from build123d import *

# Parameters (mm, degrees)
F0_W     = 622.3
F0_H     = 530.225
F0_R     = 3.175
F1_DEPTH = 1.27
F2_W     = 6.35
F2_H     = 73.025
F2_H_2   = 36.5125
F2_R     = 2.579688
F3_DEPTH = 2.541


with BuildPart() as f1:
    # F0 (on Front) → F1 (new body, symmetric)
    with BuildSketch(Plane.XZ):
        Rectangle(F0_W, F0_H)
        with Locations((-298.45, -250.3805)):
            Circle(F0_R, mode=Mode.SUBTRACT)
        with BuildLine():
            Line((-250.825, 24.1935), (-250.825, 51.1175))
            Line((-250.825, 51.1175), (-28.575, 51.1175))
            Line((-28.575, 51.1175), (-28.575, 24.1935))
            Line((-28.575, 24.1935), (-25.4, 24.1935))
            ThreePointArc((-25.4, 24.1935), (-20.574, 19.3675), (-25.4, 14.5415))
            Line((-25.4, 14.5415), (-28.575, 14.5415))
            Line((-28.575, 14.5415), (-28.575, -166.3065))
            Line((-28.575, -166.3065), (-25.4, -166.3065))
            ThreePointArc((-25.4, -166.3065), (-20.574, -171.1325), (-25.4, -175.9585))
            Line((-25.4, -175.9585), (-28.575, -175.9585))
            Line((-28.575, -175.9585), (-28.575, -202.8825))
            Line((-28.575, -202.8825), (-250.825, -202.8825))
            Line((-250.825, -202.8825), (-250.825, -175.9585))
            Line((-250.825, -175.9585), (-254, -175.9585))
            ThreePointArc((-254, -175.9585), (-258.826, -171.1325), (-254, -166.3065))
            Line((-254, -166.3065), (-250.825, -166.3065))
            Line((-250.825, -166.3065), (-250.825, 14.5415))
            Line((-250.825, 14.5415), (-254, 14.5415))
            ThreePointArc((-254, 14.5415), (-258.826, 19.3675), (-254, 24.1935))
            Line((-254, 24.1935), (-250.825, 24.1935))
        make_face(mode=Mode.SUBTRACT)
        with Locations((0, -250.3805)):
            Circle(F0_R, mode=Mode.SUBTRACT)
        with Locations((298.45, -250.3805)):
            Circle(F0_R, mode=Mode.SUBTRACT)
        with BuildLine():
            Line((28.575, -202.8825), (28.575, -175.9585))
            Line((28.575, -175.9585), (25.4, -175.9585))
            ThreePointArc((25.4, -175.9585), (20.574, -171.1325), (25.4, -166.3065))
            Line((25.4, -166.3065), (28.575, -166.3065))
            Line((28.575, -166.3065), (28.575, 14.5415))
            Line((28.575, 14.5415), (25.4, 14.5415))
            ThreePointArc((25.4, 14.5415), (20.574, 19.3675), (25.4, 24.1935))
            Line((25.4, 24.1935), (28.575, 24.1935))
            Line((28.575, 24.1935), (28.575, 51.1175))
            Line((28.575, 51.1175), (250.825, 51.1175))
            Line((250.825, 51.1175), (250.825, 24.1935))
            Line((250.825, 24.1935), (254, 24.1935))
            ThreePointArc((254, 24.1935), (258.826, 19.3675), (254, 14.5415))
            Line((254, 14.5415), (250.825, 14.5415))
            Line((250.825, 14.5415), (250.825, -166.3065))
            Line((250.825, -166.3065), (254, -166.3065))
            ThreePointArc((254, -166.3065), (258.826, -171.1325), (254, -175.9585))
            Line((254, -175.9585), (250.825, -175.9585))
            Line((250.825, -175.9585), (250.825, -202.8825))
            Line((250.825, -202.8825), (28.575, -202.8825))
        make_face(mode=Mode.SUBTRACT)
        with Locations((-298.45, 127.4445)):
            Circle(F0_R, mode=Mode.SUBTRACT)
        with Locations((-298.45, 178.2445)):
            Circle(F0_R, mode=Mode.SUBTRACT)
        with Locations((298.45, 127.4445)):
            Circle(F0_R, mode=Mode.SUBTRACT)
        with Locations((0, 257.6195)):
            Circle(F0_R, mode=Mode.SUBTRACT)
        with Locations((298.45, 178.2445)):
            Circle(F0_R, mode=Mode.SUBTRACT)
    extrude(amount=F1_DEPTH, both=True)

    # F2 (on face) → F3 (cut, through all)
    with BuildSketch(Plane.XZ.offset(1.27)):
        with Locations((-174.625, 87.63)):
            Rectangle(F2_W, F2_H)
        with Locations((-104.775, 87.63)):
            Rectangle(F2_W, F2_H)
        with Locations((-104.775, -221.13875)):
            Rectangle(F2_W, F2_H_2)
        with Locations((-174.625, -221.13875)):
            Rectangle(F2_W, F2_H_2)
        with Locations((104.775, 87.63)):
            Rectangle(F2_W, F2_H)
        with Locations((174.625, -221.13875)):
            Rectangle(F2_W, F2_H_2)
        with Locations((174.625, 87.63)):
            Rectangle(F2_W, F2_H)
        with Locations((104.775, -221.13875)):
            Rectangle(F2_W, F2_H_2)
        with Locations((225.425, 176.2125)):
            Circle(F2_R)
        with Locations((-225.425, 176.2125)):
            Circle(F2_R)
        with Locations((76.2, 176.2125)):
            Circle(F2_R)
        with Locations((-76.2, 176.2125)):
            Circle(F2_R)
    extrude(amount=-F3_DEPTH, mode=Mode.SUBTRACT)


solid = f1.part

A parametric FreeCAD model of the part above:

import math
import FreeCAD as App
import Part
import Sketcher

V = App.Vector
Q = App.Units.Quantity

doc = App.newDocument("Part")
params = doc.addObject("Spreadsheet::Sheet", "Params")
for row, (alias, value) in enumerate([
    ("sketch1_diameter", "0.25 in"),
    ("sketch1_radius", "0.19 in"),
    ("sketch1_width", "24.5 in"),
    ("sketch1_width2", "8.75 in"),
    ("sketch1_height", "1.06 in"),
    ("pad1_length", "0.1 in"),
    ("sketch2_diameter", "0.203125 in"),
    ("sketch2_width", "0.25 in"),
    ("sketch2_height", "2.875 in"),
    ("sketch2_height2", "1.4375 in"),
], start=1):
    params.set(f"A{row}", alias)
    params.set(f"B{row}", "=" + value)
    params.setAlias(f"B{row}", alias)

body = doc.addObject("PartDesign::Body", "Body")

sketch1 = doc.addObject("Sketcher::SketchObject", "Sketch")
body.addObject(sketch1)
sketch1.AttachmentSupport = (doc.XZ_Plane, [""])
sketch1.MapMode = "FlatFace"
sketch1.addGeometry([
    Part.LineSegment(V(-311.1, 265.1, 0), V(-311.1, -265.1, 0)),
    Part.LineSegment(V(-311.1, -265.1, 0), V(311.1, -265.1, 0)),
    Part.LineSegment(V(311.1, -265.1, 0), V(311.1, 265.1, 0)),
    Part.LineSegment(V(311.1, 265.1, 0), V(-311.1, 265.1, 0)),
    Part.Circle(V(-298.4, -250.4, 0), V(0, 0, 1), 3.2),
    Part.LineSegment(V(-254, 24.2, 0), V(-250.8, 24.2, 0)),
    Part.LineSegment(V(-250.8, 24.2, 0), V(-250.8, 51.1, 0)),
    Part.LineSegment(V(-250.8, 51.1, 0), V(-28.6, 51.1, 0)),
    Part.LineSegment(V(-28.6, 51.1, 0), V(-28.6, 24.2, 0)),
    Part.LineSegment(V(-28.6, 24.2, 0), V(-25.4, 24.2, 0)),
    Part.ArcOfCircle(Part.Circle(V(-25.4, 19.4, 0), V(0, 0, 1), 4.8), math.radians(-90), math.radians(90)),
    Part.LineSegment(V(-25.4, 14.5, 0), V(-28.6, 14.5, 0)),
    Part.LineSegment(V(-28.6, 14.5, 0), V(-28.6, -166.3, 0)),
    Part.LineSegment(V(-28.6, -166.3, 0), V(-25.4, -166.3, 0)),
    Part.ArcOfCircle(Part.Circle(V(-25.4, -171.1, 0), V(0, 0, 1), 4.8), math.radians(-90), math.radians(90)),
    Part.LineSegment(V(-25.4, -176, 0), V(-28.6, -176, 0)),
    Part.LineSegment(V(-28.6, -176, 0), V(-28.6, -202.9, 0)),
    Part.LineSegment(V(-28.6, -202.9, 0), V(-250.8, -202.9, 0)),
    Part.LineSegment(V(-250.8, -202.9, 0), V(-250.8, -176, 0)),
    Part.LineSegment(V(-250.8, -176, 0), V(-254, -176, 0)),
    Part.ArcOfCircle(Part.Circle(V(-254, -171.1, 0), V(0, 0, 1), 4.8), math.radians(90), math.radians(270)),
    Part.LineSegment(V(-254, -166.3, 0), V(-250.8, -166.3, 0)),
    Part.LineSegment(V(-250.8, -166.3, 0), V(-250.8, 14.5, 0)),
    Part.LineSegment(V(-250.8, 14.5, 0), V(-254, 14.5, 0)),
    Part.ArcOfCircle(Part.Circle(V(-254, 19.4, 0), V(0, 0, 1), 4.8), math.radians(90), math.radians(270)),
    Part.Circle(V(0, -250.4, 0), V(0, 0, 1), 3.2),
    Part.Circle(V(298.4, -250.4, 0), V(0, 0, 1), 3.2),
    Part.LineSegment(V(250.8, -202.9, 0), V(28.6, -202.9, 0)),
    Part.LineSegment(V(28.6, -202.9, 0), V(28.6, -176, 0)),
    Part.LineSegment(V(28.6, -176, 0), V(25.4, -176, 0)),
    Part.ArcOfCircle(Part.Circle(V(25.4, -171.1, 0), V(0, 0, 1), 4.8), math.radians(90), math.radians(270)),
    Part.LineSegment(V(25.4, -166.3, 0), V(28.6, -166.3, 0)),
    Part.LineSegment(V(28.6, -166.3, 0), V(28.6, 14.5, 0)),
    Part.LineSegment(V(28.6, 14.5, 0), V(25.4, 14.5, 0)),
    Part.ArcOfCircle(Part.Circle(V(25.4, 19.4, 0), V(0, 0, 1), 4.8), math.radians(90), math.radians(270)),
    Part.LineSegment(V(25.4, 24.2, 0), V(28.6, 24.2, 0)),
    Part.LineSegment(V(28.6, 24.2, 0), V(28.6, 51.1, 0)),
    Part.LineSegment(V(28.6, 51.1, 0), V(250.8, 51.1, 0)),
    Part.LineSegment(V(250.8, 51.1, 0), V(250.8, 24.2, 0)),
    Part.LineSegment(V(250.8, 24.2, 0), V(254, 24.2, 0)),
    Part.ArcOfCircle(Part.Circle(V(254, 19.4, 0), V(0, 0, 1), 4.8), math.radians(-90), math.radians(90)),
    Part.LineSegment(V(254, 14.5, 0), V(250.8, 14.5, 0)),
    Part.LineSegment(V(250.8, 14.5, 0), V(250.8, -166.3, 0)),
    Part.LineSegment(V(250.8, -166.3, 0), V(254, -166.3, 0)),
    Part.ArcOfCircle(Part.Circle(V(254, -171.1, 0), V(0, 0, 1), 4.8), math.radians(-90), math.radians(90)),
    Part.LineSegment(V(254, -176, 0), V(250.8, -176, 0)),
    Part.LineSegment(V(250.8, -176, 0), V(250.8, -202.9, 0)),
    Part.Circle(V(-298.4, 127.4, 0), V(0, 0, 1), 3.2),
    Part.Circle(V(-298.4, 178.2, 0), V(0, 0, 1), 3.2),
    Part.Circle(V(298.4, 127.4, 0), V(0, 0, 1), 3.2),
    Part.Circle(V(0, 257.6, 0), V(0, 0, 1), 3.2),
    Part.Circle(V(298.4, 178.2, 0), V(0, 0, 1), 3.2),
], False)
sketch1.addConstraint([
    Sketcher.Constraint("Coincident", 0, 2, 1, 1),
    Sketcher.Constraint("Coincident", 1, 2, 2, 1),
    Sketcher.Constraint("Coincident", 2, 2, 3, 1),
    Sketcher.Constraint("Coincident", 3, 2, 0, 1),
    Sketcher.Constraint("Coincident", 5, 2, 6, 1),
    Sketcher.Constraint("Coincident", 6, 2, 7, 1),
    Sketcher.Constraint("Coincident", 7, 2, 8, 1),
    Sketcher.Constraint("Coincident", 8, 2, 9, 1),
    Sketcher.Constraint("Tangent", 9, 2, 10, 2),
    Sketcher.Constraint("Tangent", 10, 1, 11, 1),
    Sketcher.Constraint("Coincident", 11, 2, 12, 1),
    Sketcher.Constraint("Coincident", 12, 2, 13, 1),
    Sketcher.Constraint("Tangent", 13, 2, 14, 2),
    Sketcher.Constraint("Tangent", 14, 1, 15, 1),
    Sketcher.Constraint("Coincident", 15, 2, 16, 1),
    Sketcher.Constraint("Coincident", 16, 2, 17, 1),
    Sketcher.Constraint("Coincident", 17, 2, 18, 1),
    Sketcher.Constraint("Coincident", 18, 2, 19, 1),
    Sketcher.Constraint("Tangent", 19, 2, 20, 2),
    Sketcher.Constraint("Tangent", 20, 1, 21, 1),
    Sketcher.Constraint("Coincident", 21, 2, 22, 1),
    Sketcher.Constraint("Coincident", 22, 2, 23, 1),
    Sketcher.Constraint("Tangent", 23, 2, 24, 2),
    Sketcher.Constraint("Tangent", 24, 1, 5, 1),
    Sketcher.Constraint("Coincident", 27, 2, 28, 1),
    Sketcher.Constraint("Coincident", 28, 2, 29, 1),
    Sketcher.Constraint("Tangent", 29, 2, 30, 2),
    Sketcher.Constraint("Tangent", 30, 1, 31, 1),
    Sketcher.Constraint("Coincident", 31, 2, 32, 1),
    Sketcher.Constraint("Coincident", 32, 2, 33, 1),
    Sketcher.Constraint("Tangent", 33, 2, 34, 2),
    Sketcher.Constraint("Tangent", 34, 1, 35, 1),
    Sketcher.Constraint("Coincident", 35, 2, 36, 1),
    Sketcher.Constraint("Coincident", 36, 2, 37, 1),
    Sketcher.Constraint("Coincident", 37, 2, 38, 1),
    Sketcher.Constraint("Coincident", 38, 2, 39, 1),
    Sketcher.Constraint("Tangent", 39, 2, 40, 2),
    Sketcher.Constraint("Tangent", 40, 1, 41, 1),
    Sketcher.Constraint("Coincident", 41, 2, 42, 1),
    Sketcher.Constraint("Coincident", 42, 2, 43, 1),
    Sketcher.Constraint("Tangent", 43, 2, 44, 2),
    Sketcher.Constraint("Tangent", 44, 1, 45, 1),
    Sketcher.Constraint("Coincident", 45, 2, 46, 1),
    Sketcher.Constraint("Coincident", 46, 2, 27, 1),
    Sketcher.Constraint("Vertical", 0),
    Sketcher.Constraint("Horizontal", 1),
    Sketcher.Constraint("Vertical", 2),
    Sketcher.Constraint("Horizontal", 3),
    Sketcher.Constraint("Horizontal", 5),
    Sketcher.Constraint("Vertical", 6),
    Sketcher.Constraint("Horizontal", 7),
    Sketcher.Constraint("Vertical", 8),
    Sketcher.Constraint("Horizontal", 9),
    Sketcher.Constraint("Horizontal", 11),
    Sketcher.Constraint("Vertical", 12),
    Sketcher.Constraint("Horizontal", 13),
    Sketcher.Constraint("Horizontal", 15),
    Sketcher.Constraint("Vertical", 16),
    Sketcher.Constraint("Horizontal", 17),
    Sketcher.Constraint("Vertical", 18),
    Sketcher.Constraint("Horizontal", 19),
    Sketcher.Constraint("Horizontal", 21),
    Sketcher.Constraint("Vertical", 22),
    Sketcher.Constraint("Horizontal", 23),
    Sketcher.Constraint("Horizontal", 27),
    Sketcher.Constraint("Vertical", 28),
    Sketcher.Constraint("Horizontal", 29),
    Sketcher.Constraint("Horizontal", 31),
    Sketcher.Constraint("Vertical", 32),
    Sketcher.Constraint("Horizontal", 33),
    Sketcher.Constraint("Horizontal", 35),
    Sketcher.Constraint("Vertical", 36),
    Sketcher.Constraint("Horizontal", 37),
    Sketcher.Constraint("Vertical", 38),
    Sketcher.Constraint("Horizontal", 39),
    Sketcher.Constraint("Horizontal", 41),
    Sketcher.Constraint("Vertical", 42),
    Sketcher.Constraint("Horizontal", 43),
    Sketcher.Constraint("Horizontal", 45),
    Sketcher.Constraint("Vertical", 46),
    Sketcher.Constraint("Equal", 10, 14),
    Sketcher.Constraint("Equal", 14, 20),
    Sketcher.Constraint("Equal", 20, 24),
    Sketcher.Constraint("Equal", 4, 25),
    Sketcher.Constraint("Equal", 25, 26),
    Sketcher.Constraint("Equal", 24, 30),
    Sketcher.Constraint("Equal", 30, 34),
    Sketcher.Constraint("Equal", 34, 40),
    Sketcher.Constraint("Equal", 40, 44),
    Sketcher.Constraint("Equal", 26, 47),
    Sketcher.Constraint("Equal", 47, 48),
    Sketcher.Constraint("Equal", 48, 49),
    Sketcher.Constraint("Equal", 49, 50),
    Sketcher.Constraint("Equal", 50, 51),
    Sketcher.Constraint("Symmetric", 0, 2, 2, 2, -1, 1),
    Sketcher.Constraint("Symmetric", 4, 3, 26, 3, -2),
    Sketcher.Constraint("Symmetric", 14, 3, 30, 3, -2),
    Sketcher.Constraint("Symmetric", 10, 3, 34, 3, -2),
    Sketcher.Constraint("Symmetric", 24, 3, 40, 3, -2),
    Sketcher.Constraint("Symmetric", 20, 3, 44, 3, -2),
    Sketcher.Constraint("Symmetric", 47, 3, 49, 3, -2),
    Sketcher.Constraint("Symmetric", 48, 3, 51, 3, -2),
    Sketcher.Constraint("Symmetric", 16, 2, 27, 2, -2),
    Sketcher.Constraint("Symmetric", 7, 2, 36, 2, -2),
    Sketcher.Constraint("PointOnObject", 25, 3, -2),
    Sketcher.Constraint("PointOnObject", 50, 3, -2),
    Sketcher.Constraint("Horizontal", 14, 3, 20, 3),
    Sketcher.Constraint("Horizontal", 10, 3, 24, 3),
    Sketcher.Constraint("Horizontal", 4, 3, 25, 3),
    Sketcher.Constraint("Vertical", 10, 3, 14, 3),
    Sketcher.Constraint("Vertical", 20, 3, 24, 3),
    Sketcher.Constraint("Vertical", 4, 3, 47, 3),
    Sketcher.Constraint("Vertical", 47, 3, 48, 3),
    Sketcher.Constraint("Vertical", 8, 2, 11, 2),
    Sketcher.Constraint("Vertical", 12, 2, 15, 2),
    Sketcher.Constraint("Vertical", 6, 2, 17, 2),
    Sketcher.Constraint("Vertical", 18, 2, 21, 2),
    Sketcher.Constraint("Vertical", 28, 2, 31, 2),
    Sketcher.Constraint("Vertical", 38, 2, 41, 2),
    Sketcher.Constraint("Vertical", 42, 2, 45, 2),
    Sketcher.Constraint("Equal", 5, 9),
    Sketcher.Constraint("Equal", 17, 27),
    Sketcher.Constraint("Equal", 8, 16),
    Sketcher.Constraint("Diameter", 4, Q("0.25 in")),
    Sketcher.Constraint("Radius", 10, Q("0.19 in")),
    Sketcher.Constraint("DistanceX", 1, 1, 1, 2, Q("24.5 in")),
    Sketcher.Constraint("DistanceX", 10, 3, -1, 1, Q("1 in")),
    Sketcher.Constraint("DistanceX", 20, 3, -1, 1, Q("10 in")),
    Sketcher.Constraint("DistanceY", 47, 3, 48, 3, Q("2 in")),
    Sketcher.Constraint("DistanceX", 7, 1, 7, 2, Q("8.75 in")),
    Sketcher.Constraint("DistanceY", 6, 1, 6, 2, Q("1.06 in")),
    Sketcher.Constraint("DistanceY", 12, 2, 12, 1, Q("7.12 in")),
    Sketcher.Constraint("DistanceX", 4, 3, 26, 3, Q("23.5 in")),
    Sketcher.Constraint("DistanceY", 0, 2, 20, 3, Q("3.7 in")),
    Sketcher.Constraint("DistanceY", 0, 2, 0, 1, Q("20.875 in")),
    Sketcher.Constraint("DistanceY", 4, 3, 10, 3, Q("10.62 in")),
    Sketcher.Constraint("DistanceY", 10, 3, 50, 3, Q("9.38 in")),
    Sketcher.Constraint("DistanceY", 51, 3, 2, 2, Q("3.42 in")),
])
sketch1.setExpression("Constraints[123]", "Params.sketch1_diameter")
sketch1.setExpression("Constraints[124]", "Params.sketch1_radius")
sketch1.setExpression("Constraints[125]", "Params.sketch1_width")
sketch1.setExpression("Constraints[129]", "Params.sketch1_width2")
sketch1.setExpression("Constraints[130]", "Params.sketch1_height")
pad1 = doc.addObject("PartDesign::Pad", "Pad")
body.addObject(pad1)
pad1.Profile = sketch1
pad1.setExpression("Length", "Params.pad1_length")
pad1.Midplane = True

sketch2 = doc.addObject("Sketcher::SketchObject", "Sketch001")
body.addObject(sketch2)
sketch2.AttachmentSupport = (doc.XZ_Plane, [""])
sketch2.MapMode = "FlatFace"
sketch2.AttachmentOffset = App.Placement(V(0, 0, 0.05 * 25.4), App.Rotation())
sketch2.addGeometry([
    Part.LineSegment(V(-177.8, 124.1, 0), V(-177.8, 51.1, 0)),
    Part.LineSegment(V(-177.8, 51.1, 0), V(-171.4, 51.1, 0)),
    Part.LineSegment(V(-171.4, 51.1, 0), V(-171.4, 124.1, 0)),
    Part.LineSegment(V(-171.4, 124.1, 0), V(-177.8, 124.1, 0)),
    Part.LineSegment(V(-108, 124.1, 0), V(-108, 51.1, 0)),
    Part.LineSegment(V(-108, 51.1, 0), V(-101.6, 51.1, 0)),
    Part.LineSegment(V(-101.6, 51.1, 0), V(-101.6, 124.1, 0)),
    Part.LineSegment(V(-101.6, 124.1, 0), V(-108, 124.1, 0)),
    Part.LineSegment(V(-108, -202.9, 0), V(-108, -239.4, 0)),
    Part.LineSegment(V(-108, -239.4, 0), V(-101.6, -239.4, 0)),
    Part.LineSegment(V(-101.6, -239.4, 0), V(-101.6, -202.9, 0)),
    Part.LineSegment(V(-101.6, -202.9, 0), V(-108, -202.9, 0)),
    Part.LineSegment(V(-177.8, -202.9, 0), V(-177.8, -239.4, 0)),
    Part.LineSegment(V(-177.8, -239.4, 0), V(-171.4, -239.4, 0)),
    Part.LineSegment(V(-171.4, -239.4, 0), V(-171.4, -202.9, 0)),
    Part.LineSegment(V(-171.4, -202.9, 0), V(-177.8, -202.9, 0)),
    Part.LineSegment(V(101.6, 124.1, 0), V(101.6, 51.1, 0)),
    Part.LineSegment(V(101.6, 51.1, 0), V(108, 51.1, 0)),
    Part.LineSegment(V(108, 51.1, 0), V(108, 124.1, 0)),
    Part.LineSegment(V(108, 124.1, 0), V(101.6, 124.1, 0)),
    Part.LineSegment(V(171.4, -202.9, 0), V(171.4, -239.4, 0)),
    Part.LineSegment(V(171.4, -239.4, 0), V(177.8, -239.4, 0)),
    Part.LineSegment(V(177.8, -239.4, 0), V(177.8, -202.9, 0)),
    Part.LineSegment(V(177.8, -202.9, 0), V(171.4, -202.9, 0)),
    Part.LineSegment(V(171.4, 124.1, 0), V(171.4, 51.1, 0)),
    Part.LineSegment(V(171.4, 51.1, 0), V(177.8, 51.1, 0)),
    Part.LineSegment(V(177.8, 51.1, 0), V(177.8, 124.1, 0)),
    Part.LineSegment(V(177.8, 124.1, 0), V(171.4, 124.1, 0)),
    Part.LineSegment(V(101.6, -202.9, 0), V(101.6, -239.4, 0)),
    Part.LineSegment(V(101.6, -239.4, 0), V(108, -239.4, 0)),
    Part.LineSegment(V(108, -239.4, 0), V(108, -202.9, 0)),
    Part.LineSegment(V(108, -202.9, 0), V(101.6, -202.9, 0)),
    Part.Circle(V(225.4, 176.2, 0), V(0, 0, 1), 2.6),
    Part.Circle(V(-225.4, 176.2, 0), V(0, 0, 1), 2.6),
    Part.Circle(V(76.2, 176.2, 0), V(0, 0, 1), 2.6),
    Part.Circle(V(-76.2, 176.2, 0), V(0, 0, 1), 2.6),
], False)
sketch2.addConstraint([
    Sketcher.Constraint("Coincident", 0, 2, 1, 1),
    Sketcher.Constraint("Coincident", 1, 2, 2, 1),
    Sketcher.Constraint("Coincident", 2, 2, 3, 1),
    Sketcher.Constraint("Coincident", 3, 2, 0, 1),
    Sketcher.Constraint("Coincident", 4, 2, 5, 1),
    Sketcher.Constraint("Coincident", 5, 2, 6, 1),
    Sketcher.Constraint("Coincident", 6, 2, 7, 1),
    Sketcher.Constraint("Coincident", 7, 2, 4, 1),
    Sketcher.Constraint("Coincident", 8, 2, 9, 1),
    Sketcher.Constraint("Coincident", 9, 2, 10, 1),
    Sketcher.Constraint("Coincident", 10, 2, 11, 1),
    Sketcher.Constraint("Coincident", 11, 2, 8, 1),
    Sketcher.Constraint("Coincident", 12, 2, 13, 1),
    Sketcher.Constraint("Coincident", 13, 2, 14, 1),
    Sketcher.Constraint("Coincident", 14, 2, 15, 1),
    Sketcher.Constraint("Coincident", 15, 2, 12, 1),
    Sketcher.Constraint("Coincident", 16, 2, 17, 1),
    Sketcher.Constraint("Coincident", 17, 2, 18, 1),
    Sketcher.Constraint("Coincident", 18, 2, 19, 1),
    Sketcher.Constraint("Coincident", 19, 2, 16, 1),
    Sketcher.Constraint("Coincident", 20, 2, 21, 1),
    Sketcher.Constraint("Coincident", 21, 2, 22, 1),
    Sketcher.Constraint("Coincident", 22, 2, 23, 1),
    Sketcher.Constraint("Coincident", 23, 2, 20, 1),
    Sketcher.Constraint("Coincident", 24, 2, 25, 1),
    Sketcher.Constraint("Coincident", 25, 2, 26, 1),
    Sketcher.Constraint("Coincident", 26, 2, 27, 1),
    Sketcher.Constraint("Coincident", 27, 2, 24, 1),
    Sketcher.Constraint("Coincident", 28, 2, 29, 1),
    Sketcher.Constraint("Coincident", 29, 2, 30, 1),
    Sketcher.Constraint("Coincident", 30, 2, 31, 1),
    Sketcher.Constraint("Coincident", 31, 2, 28, 1),
    Sketcher.Constraint("Vertical", 0),
    Sketcher.Constraint("Horizontal", 1),
    Sketcher.Constraint("Vertical", 2),
    Sketcher.Constraint("Horizontal", 3),
    Sketcher.Constraint("Vertical", 4),
    Sketcher.Constraint("Horizontal", 5),
    Sketcher.Constraint("Vertical", 6),
    Sketcher.Constraint("Horizontal", 7),
    Sketcher.Constraint("Vertical", 8),
    Sketcher.Constraint("Horizontal", 9),
    Sketcher.Constraint("Vertical", 10),
    Sketcher.Constraint("Horizontal", 11),
    Sketcher.Constraint("Vertical", 12),
    Sketcher.Constraint("Horizontal", 13),
    Sketcher.Constraint("Vertical", 14),
    Sketcher.Constraint("Horizontal", 15),
    Sketcher.Constraint("Vertical", 16),
    Sketcher.Constraint("Horizontal", 17),
    Sketcher.Constraint("Vertical", 18),
    Sketcher.Constraint("Horizontal", 19),
    Sketcher.Constraint("Vertical", 20),
    Sketcher.Constraint("Horizontal", 21),
    Sketcher.Constraint("Vertical", 22),
    Sketcher.Constraint("Horizontal", 23),
    Sketcher.Constraint("Vertical", 24),
    Sketcher.Constraint("Horizontal", 25),
    Sketcher.Constraint("Vertical", 26),
    Sketcher.Constraint("Horizontal", 27),
    Sketcher.Constraint("Vertical", 28),
    Sketcher.Constraint("Horizontal", 29),
    Sketcher.Constraint("Vertical", 30),
    Sketcher.Constraint("Horizontal", 31),
    Sketcher.Constraint("Equal", 32, 33),
    Sketcher.Constraint("Equal", 33, 34),
    Sketcher.Constraint("Equal", 34, 35),
    Sketcher.Constraint("Symmetric", 32, 3, 33, 3, -2),
    Sketcher.Constraint("Symmetric", 34, 3, 35, 3, -2),
    Sketcher.Constraint("Symmetric", 5, 2, 16, 2, -2),
    Sketcher.Constraint("Symmetric", 7, 2, 18, 2, -2),
    Sketcher.Constraint("Symmetric", 13, 2, 20, 2, -2),
    Sketcher.Constraint("Symmetric", 15, 2, 22, 2, -2),
    Sketcher.Constraint("Symmetric", 1, 2, 24, 2, -2),
    Sketcher.Constraint("Symmetric", 3, 2, 26, 2, -2),
    Sketcher.Constraint("Symmetric", 9, 2, 28, 2, -2),
    Sketcher.Constraint("Symmetric", 11, 2, 30, 2, -2),
    Sketcher.Constraint("Horizontal", 33, 3, 34, 3),
    Sketcher.Constraint("Horizontal", 1, 2, 4, 2),
    Sketcher.Constraint("Horizontal", 3, 2, 6, 2),
    Sketcher.Constraint("Horizontal", 9, 2, 12, 2),
    Sketcher.Constraint("Horizontal", 11, 2, 14, 2),
    Sketcher.Constraint("Vertical", 7, 2, 8, 2),
    Sketcher.Constraint("Vertical", 6, 2, 9, 2),
    Sketcher.Constraint("Vertical", 3, 2, 12, 2),
    Sketcher.Constraint("Vertical", 2, 2, 13, 2),
    Sketcher.Constraint("Equal", 3, 5),
    Sketcher.Constraint("Diameter", 32, Q("0.203125 in")),
    Sketcher.Constraint("DistanceX", -1, 1, 34, 3, Q("3 in")),
    Sketcher.Constraint("DistanceX", 0, 2, -1, 1, Q("7 in")),
    Sketcher.Constraint("DistanceX", 5, 2, -1, 1, Q("4 in")),
    Sketcher.Constraint("DistanceY", 10, 2, 5, 2, Q("10 in")),
    Sketcher.Constraint("DistanceX", 1, 1, 1, 2, Q("0.25 in")),
    Sketcher.Constraint("DistanceY", 0, 2, 0, 1, Q("2.875 in")),
    Sketcher.Constraint("DistanceY", 8, 2, 8, 1, Q("1.4375 in")),
    Sketcher.Constraint("DistanceX", 33, 3, 32, 3, Q("17.75 in")),
    Sketcher.Constraint("DistanceY", 2, 2, 33, 3, Q("2.05 in")),
    Sketcher.Constraint("DistanceY", -1, 1, 32, 3, Q("6.9375 in")),
])
sketch2.setExpression("Constraints[87]", "Params.sketch2_diameter")
sketch2.setExpression("Constraints[92]", "Params.sketch2_width")
sketch2.setExpression("Constraints[93]", "Params.sketch2_height")
sketch2.setExpression("Constraints[94]", "Params.sketch2_height2")
pocket1 = doc.addObject("PartDesign::Pocket", "Pocket")
body.addObject(pocket1)
pocket1.Profile = sketch2
pocket1.Type = "ThroughAll"

doc.recompute()
